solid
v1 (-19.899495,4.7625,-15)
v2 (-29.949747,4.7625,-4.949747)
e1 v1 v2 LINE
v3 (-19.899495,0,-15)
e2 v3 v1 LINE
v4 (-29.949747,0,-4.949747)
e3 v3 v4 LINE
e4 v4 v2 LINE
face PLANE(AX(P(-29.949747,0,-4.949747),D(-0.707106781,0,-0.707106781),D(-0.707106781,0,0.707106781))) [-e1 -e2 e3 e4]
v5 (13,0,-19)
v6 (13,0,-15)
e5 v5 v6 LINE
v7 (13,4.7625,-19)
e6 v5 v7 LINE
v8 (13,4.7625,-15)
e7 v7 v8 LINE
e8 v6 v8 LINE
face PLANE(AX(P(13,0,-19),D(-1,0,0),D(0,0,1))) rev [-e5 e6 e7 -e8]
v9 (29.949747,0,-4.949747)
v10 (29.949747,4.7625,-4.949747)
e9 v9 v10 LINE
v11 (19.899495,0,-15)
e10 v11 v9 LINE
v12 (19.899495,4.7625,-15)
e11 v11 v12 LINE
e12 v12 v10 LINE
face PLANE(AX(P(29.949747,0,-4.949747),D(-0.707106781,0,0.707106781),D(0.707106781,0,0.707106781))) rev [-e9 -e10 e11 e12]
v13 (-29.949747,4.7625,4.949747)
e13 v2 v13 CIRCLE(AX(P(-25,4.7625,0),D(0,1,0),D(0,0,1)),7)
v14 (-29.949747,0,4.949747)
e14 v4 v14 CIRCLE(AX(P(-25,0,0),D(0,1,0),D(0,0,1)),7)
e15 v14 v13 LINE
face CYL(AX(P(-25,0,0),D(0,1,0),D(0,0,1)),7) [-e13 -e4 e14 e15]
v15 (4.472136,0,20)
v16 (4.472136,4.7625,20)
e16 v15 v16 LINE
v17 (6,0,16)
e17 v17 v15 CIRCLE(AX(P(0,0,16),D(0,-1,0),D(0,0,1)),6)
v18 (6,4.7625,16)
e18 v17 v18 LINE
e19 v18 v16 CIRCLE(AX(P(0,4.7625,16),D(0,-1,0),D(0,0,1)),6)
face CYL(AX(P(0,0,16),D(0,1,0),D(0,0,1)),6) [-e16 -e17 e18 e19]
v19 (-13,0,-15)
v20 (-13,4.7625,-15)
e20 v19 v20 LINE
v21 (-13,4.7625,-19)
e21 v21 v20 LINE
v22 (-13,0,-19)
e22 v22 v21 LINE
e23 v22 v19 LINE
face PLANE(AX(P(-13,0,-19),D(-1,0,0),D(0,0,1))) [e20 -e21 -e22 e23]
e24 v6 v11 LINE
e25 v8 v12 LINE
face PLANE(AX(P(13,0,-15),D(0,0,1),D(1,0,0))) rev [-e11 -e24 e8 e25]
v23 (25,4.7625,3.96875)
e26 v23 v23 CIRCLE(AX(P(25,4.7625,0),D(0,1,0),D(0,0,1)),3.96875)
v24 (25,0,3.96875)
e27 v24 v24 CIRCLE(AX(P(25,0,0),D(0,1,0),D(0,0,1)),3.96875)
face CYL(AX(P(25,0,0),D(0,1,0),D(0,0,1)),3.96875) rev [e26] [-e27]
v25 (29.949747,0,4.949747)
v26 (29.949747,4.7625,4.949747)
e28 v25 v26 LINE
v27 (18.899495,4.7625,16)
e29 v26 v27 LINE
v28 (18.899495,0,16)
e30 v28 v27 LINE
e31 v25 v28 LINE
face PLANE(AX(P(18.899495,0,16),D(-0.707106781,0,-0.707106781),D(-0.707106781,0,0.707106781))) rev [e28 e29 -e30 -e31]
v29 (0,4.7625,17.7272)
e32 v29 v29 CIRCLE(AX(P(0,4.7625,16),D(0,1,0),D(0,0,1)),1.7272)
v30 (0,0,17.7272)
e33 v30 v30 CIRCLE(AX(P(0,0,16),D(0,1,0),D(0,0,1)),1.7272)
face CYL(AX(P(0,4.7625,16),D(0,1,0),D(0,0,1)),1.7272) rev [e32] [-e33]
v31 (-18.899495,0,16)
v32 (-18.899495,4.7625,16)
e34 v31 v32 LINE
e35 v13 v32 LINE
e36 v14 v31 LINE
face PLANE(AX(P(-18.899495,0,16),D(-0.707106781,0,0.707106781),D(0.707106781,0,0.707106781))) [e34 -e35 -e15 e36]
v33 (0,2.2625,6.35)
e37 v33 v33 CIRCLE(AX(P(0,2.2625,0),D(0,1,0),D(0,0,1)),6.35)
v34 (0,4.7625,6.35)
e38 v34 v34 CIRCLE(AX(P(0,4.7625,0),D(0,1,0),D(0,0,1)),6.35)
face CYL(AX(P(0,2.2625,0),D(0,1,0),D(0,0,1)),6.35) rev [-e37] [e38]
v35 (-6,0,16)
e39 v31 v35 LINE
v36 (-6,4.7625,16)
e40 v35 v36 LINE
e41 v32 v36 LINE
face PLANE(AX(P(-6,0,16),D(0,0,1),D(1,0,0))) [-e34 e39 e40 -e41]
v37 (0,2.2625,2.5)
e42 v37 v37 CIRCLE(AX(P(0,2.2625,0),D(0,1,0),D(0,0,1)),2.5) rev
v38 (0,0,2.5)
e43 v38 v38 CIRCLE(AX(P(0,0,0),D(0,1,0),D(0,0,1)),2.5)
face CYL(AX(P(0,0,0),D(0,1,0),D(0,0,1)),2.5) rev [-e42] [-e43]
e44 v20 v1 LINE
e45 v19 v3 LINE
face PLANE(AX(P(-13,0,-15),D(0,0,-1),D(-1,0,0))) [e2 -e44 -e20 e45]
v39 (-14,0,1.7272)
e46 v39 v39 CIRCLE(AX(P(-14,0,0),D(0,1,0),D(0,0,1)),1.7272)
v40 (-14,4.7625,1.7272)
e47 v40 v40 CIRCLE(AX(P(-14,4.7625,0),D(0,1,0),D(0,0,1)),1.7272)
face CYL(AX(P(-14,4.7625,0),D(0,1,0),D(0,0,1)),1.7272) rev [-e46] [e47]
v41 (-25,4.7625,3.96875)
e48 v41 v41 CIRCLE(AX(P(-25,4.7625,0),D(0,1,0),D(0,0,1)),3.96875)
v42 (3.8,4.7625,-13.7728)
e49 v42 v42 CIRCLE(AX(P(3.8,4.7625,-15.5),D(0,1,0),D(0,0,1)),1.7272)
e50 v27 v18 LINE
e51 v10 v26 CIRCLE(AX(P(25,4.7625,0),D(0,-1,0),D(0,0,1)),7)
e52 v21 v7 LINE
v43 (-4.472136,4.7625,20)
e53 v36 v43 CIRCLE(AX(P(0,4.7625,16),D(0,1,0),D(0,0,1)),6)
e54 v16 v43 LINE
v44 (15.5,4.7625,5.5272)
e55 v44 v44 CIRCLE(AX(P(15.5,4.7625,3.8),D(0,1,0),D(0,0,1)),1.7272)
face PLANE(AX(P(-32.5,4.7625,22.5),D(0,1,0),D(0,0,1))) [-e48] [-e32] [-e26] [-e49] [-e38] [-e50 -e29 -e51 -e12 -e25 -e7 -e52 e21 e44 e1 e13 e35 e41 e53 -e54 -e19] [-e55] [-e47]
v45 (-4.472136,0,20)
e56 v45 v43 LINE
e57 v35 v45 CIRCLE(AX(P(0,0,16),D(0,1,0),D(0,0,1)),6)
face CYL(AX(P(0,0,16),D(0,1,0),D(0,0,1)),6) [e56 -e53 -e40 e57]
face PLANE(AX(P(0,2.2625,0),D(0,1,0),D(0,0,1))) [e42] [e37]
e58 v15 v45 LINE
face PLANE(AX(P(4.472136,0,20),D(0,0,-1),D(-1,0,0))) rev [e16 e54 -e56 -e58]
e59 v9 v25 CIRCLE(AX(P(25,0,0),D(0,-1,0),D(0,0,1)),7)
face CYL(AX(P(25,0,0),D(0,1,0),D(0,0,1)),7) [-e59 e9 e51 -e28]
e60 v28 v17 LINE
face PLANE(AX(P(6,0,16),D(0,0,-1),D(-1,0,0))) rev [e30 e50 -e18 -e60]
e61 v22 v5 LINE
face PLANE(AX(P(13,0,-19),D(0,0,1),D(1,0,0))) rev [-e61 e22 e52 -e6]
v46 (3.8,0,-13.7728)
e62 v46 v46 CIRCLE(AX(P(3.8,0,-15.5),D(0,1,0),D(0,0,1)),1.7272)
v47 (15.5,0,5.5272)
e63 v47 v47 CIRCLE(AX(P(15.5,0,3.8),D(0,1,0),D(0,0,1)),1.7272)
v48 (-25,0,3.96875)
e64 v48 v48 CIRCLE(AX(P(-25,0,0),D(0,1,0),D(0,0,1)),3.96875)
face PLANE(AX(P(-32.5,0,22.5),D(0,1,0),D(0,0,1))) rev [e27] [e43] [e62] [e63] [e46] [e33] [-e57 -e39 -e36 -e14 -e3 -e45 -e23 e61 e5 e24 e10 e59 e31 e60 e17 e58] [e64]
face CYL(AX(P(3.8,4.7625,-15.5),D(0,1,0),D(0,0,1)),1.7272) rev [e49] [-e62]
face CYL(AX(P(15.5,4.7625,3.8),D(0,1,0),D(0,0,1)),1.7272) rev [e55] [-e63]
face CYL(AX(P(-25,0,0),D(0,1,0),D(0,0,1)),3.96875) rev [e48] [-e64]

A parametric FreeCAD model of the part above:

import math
import FreeCAD as App
import Part
import Sketcher

V = App.Vector
Q = App.Units.Quantity

doc = App.newDocument("Part")
params = doc.addObject("Spreadsheet::Sheet", "Params")
for row, (alias, value) in enumerate([
    ("sketch1_width", "65 mm"),
    ("sketch1_height", "45 mm"),
    ("pad1_length", "4.7625 mm"),
    ("sketch2_diameter", "5 mm"),
    ("hole_diameter", "3.4544 mm"),
    ("sketch5_radius", "6 mm"),
    ("sketch5_radius2", "7 mm"),
    ("sketch5_width", "13 mm"),
    ("sketch5_height", "45 mm"),
    ("sketch5_height2", "4 mm"),
    ("sketch6_diameter", "12.7 mm"),
    ("pocket4_length", "2.5 mm"),
], start=1):
    params.set(f"A{row}", alias)
    params.set(f"B{row}", "=" + value)
    params.setAlias(f"B{row}", alias)

body = doc.addObject("PartDesign::Body", "Body")

sketch1 = body.newObject("Sketcher::SketchObject", "Sketch")
sketch1.AttachmentSupport = (doc.getObject("XZ_Plane"), [""])
sketch1.MapMode = "FlatFace"
sketch1.addGeometry([
    Part.LineSegment(V(-32.5, -22.5, 0), V(-32.5, 22.5, 0)),
    Part.LineSegment(V(-32.5, 22.5, 0), V(32.5, 22.5, 0)),
    Part.LineSegment(V(32.5, 22.5, 0), V(32.5, -22.5, 0)),
    Part.LineSegment(V(32.5, -22.5, 0), V(-32.5, -22.5, 0)),
], False)
sketch1.addConstraint([
    Sketcher.Constraint("Coincident", 0, 2, 1, 1),
    Sketcher.Constraint("Coincident", 1, 2, 2, 1),
    Sketcher.Constraint("Coincident", 2, 2, 3, 1),
    Sketcher.Constraint("Coincident", 3, 2, 0, 1),
    Sketcher.Constraint("Vertical", 0),
    Sketcher.Constraint("Horizontal", 1),
    Sketcher.Constraint("Vertical", 2),
    Sketcher.Constraint("Horizontal", 3),
    Sketcher.Constraint("Symmetric", 0, 2, 2, 2, -1, 1),
    Sketcher.Constraint("DistanceX", 1, 1, 1, 2, Q("65 mm")),
    Sketcher.Constraint("DistanceY", 0, 1, 0, 2, Q("45 mm")),
])
sketch1.setExpression("Constraints[9]", "Params.sketch1_width")
sketch1.setExpression("Constraints[10]", "Params.sketch1_height")
pad1 = body.newObject("PartDesign::Pad", "Pad")
pad1.Profile = sketch1
pad1.setExpression("Length", "Params.pad1_length")
pad1.Reversed = True

sketch2 = body.newObject("Sketcher::SketchObject", "Sketch001")
sketch2.AttachmentSupport = (doc.getObject("XZ_Plane"), [""])
sketch2.MapMode = "FlatFace"
sketch2.AttachmentOffset = App.Placement(V(0, 0, -4.7625), App.Rotation())
sketch2.addGeometry(Part.Circle(V(0, 0, 0), V(0, 0, 1), 2.5), False)
sketch2.addConstraint([
    Sketcher.Constraint("Coincident", 0, 3, -1, 1),
    Sketcher.Constraint("Diameter", 0, Q("5 mm")),
])
sketch2.setExpression("Constraints[1]", "Params.sketch2_diameter")
pocket1 = body.newObject("PartDesign::Pocket", "Pocket")
pocket1.Profile = sketch2
pocket1.Type = "ThroughAll"
pocket1.Reversed = True

sketch3 = body.newObject("Sketcher::SketchObject", "Sketch002")
sketch3.AttachmentSupport = (doc.getObject("XZ_Plane"), [""])
sketch3.MapMode = "FlatFace"
sketch3.AttachmentOffset = App.Placement(V(0, 0, -4.7625), App.Rotation())
sketch3.addGeometry([
    Part.Circle(V(15.5, 3.8, 0), V(0, 0, 1), 1.7272),
    Part.Circle(V(-14, 0, 0), V(0, 0, 1), 1.7272),
    Part.Circle(V(3.8, -15.5, 0), V(0, 0, 1), 1.7272),
    Part.Circle(V(0, 16, 0), V(0, 0, 1), 1.7272),
], False)
sketch3.addConstraint([
    Sketcher.Constraint("Equal", 0, 1),
    Sketcher.Constraint("Equal", 1, 2),
    Sketcher.Constraint("Equal", 2, 3),
    Sketcher.Constraint("PointOnObject", 1, 3, -1),
    Sketcher.Constraint("PointOnObject", 3, 3, -2),
    Sketcher.Constraint("DistanceX", 1, 3, -1, 1, Q("14 mm")),
    Sketcher.Constraint("DistanceY", -1, 1, 3, 3, Q("16 mm")),
    Sketcher.Constraint("Diameter", 0, Q("3.4544 mm")),
    Sketcher.Constraint("DistanceX", -1, 1, 0, 3, Q("15.5 mm")),
    Sketcher.Constraint("DistanceY", -1, 1, 0, 3, Q("3.8 mm")),
    Sketcher.Constraint("DistanceX", -1, 1, 2, 3, Q("3.8 mm")),
    Sketcher.Constraint("DistanceY", 2, 3, -1, 1, Q("15.5 mm")),
])
doc.recompute()
hole = body.newObject("PartDesign::Hole", "Hole")
hole.Profile = sketch3
hole.ThreadType = "None"
hole.setExpression("Diameter", "Params.hole_diameter")
hole.DepthType = "ThroughAll"
hole.Reversed = True

sketch4 = body.newObject("Sketcher::SketchObject", "Sketch003")
sketch4.AttachmentSupport = (doc.getObject("XZ_Plane"), [""])
sketch4.MapMode = "FlatFace"
sketch4.AttachmentOffset = App.Placement(V(0, 0, -4.7625), App.Rotation())
sketch4.addGeometry([
    Part.Circle(V(-25, 0, 0), V(0, 0, 1), 3.96875),
    Part.Circle(V(25, 0, 0), V(0, 0, 1), 3.96875),
], False)
sketch4.addConstraint([
    Sketcher.Constraint("Equal", 0, 1),
    Sketcher.Constraint("Symmetric", 0, 3, 1, 3, -1, 1),
    Sketcher.Constraint("PointOnObject", 0, 3, -1),
    Sketcher.Constraint("DistanceX", 0, 3, -1, 1, Q("25 mm")),
    Sketcher.Constraint("Diameter", 0, Q("7.9375 mm")),
])
pocket2 = body.newObject("PartDesign::Pocket", "Pocket001")
pocket2.Profile = sketch4
pocket2.Type = "ThroughAll"
pocket2.Reversed = True

sketch5 = body.newObject("Sketcher::SketchObject", "Sketch004")
sketch5.AttachmentSupport = (doc.getObject("XZ_Plane"), [""])
sketch5.MapMode = "FlatFace"
sketch5.AttachmentOffset = App.Placement(V(0, 0, -4.7625), App.Rotation())
sketch5.addGeometry([
    Part.LineSegment(V(18.899495, 16, 0), V(6, 16, 0)),
    Part.ArcOfCircle(Part.Circle(V(0, 16, 0), V(0, 0, 1), 6), math.radians(0), math.radians(41.810315)),
    Part.LineSegment(V(4.472136, 20, 0), V(0, 20, 0)),
    Part.LineSegment(V(0, 20, 0), V(0, 22.5, 0)),
    Part.LineSegment(V(0, 22.5, 0), V(32.5, 22.5, 0)),
    Part.LineSegment(V(32.5, 22.5, 0), V(32.5, -22.5, 0)),
    Part.LineSegment(V(32.5, -22.5, 0), V(0, -22.5, 0)),
    Part.LineSegment(V(0, -22.5, 0), V(0, -19, 0)),
    Part.LineSegment(V(0, -19, 0), V(13, -19, 0)),
    Part.LineSegment(V(13, -19, 0), V(13, -15, 0)),
    Part.LineSegment(V(13, -15, 0), V(19.899495, -15, 0)),
    Part.LineSegment(V(19.899495, -15, 0), V(29.949747, -4.949747, 0)),
    Part.ArcOfCircle(Part.Circle(V(25, 0, 0), V(0, 0, 1), 7), math.radians(-45), math.radians(45)),
    Part.LineSegment(V(29.949747, 4.949747, 0), V(18.899495, 16, 0)),
], False)
sketch5.addConstraint([
    Sketcher.Constraint("Coincident", 0, 2, 1, 1),
    Sketcher.Constraint("Coincident", 1, 2, 2, 1),
    Sketcher.Constraint("Coincident", 2, 2, 3, 1),
    Sketcher.Constraint("Coincident", 3, 2, 4, 1),
    Sketcher.Constraint("Coincident", 4, 2, 5, 1),
    Sketcher.Constraint("Coincident", 5, 2, 6, 1),
    Sketcher.Constraint("Coincident", 6, 2, 7, 1),
    Sketcher.Constraint("Coincident", 7, 2, 8, 1),
    Sketcher.Constraint("Coincident", 8, 2, 9, 1),
    Sketcher.Constraint("Coincident", 9, 2, 10, 1),
    Sketcher.Constraint("Coincident", 10, 2, 11, 1),
    Sketcher.Constraint("Tangent", 11, 2, 12, 1),
    Sketcher.Constraint("Tangent", 12, 2, 13, 1),
    Sketcher.Constraint("Coincident", 13, 2, 0, 1),
    Sketcher.Constraint("Horizontal", 0),
    Sketcher.Constraint("Horizontal", 2),
    Sketcher.Constraint("Vertical", 3),
    Sketcher.Constraint("Horizontal", 4),
    Sketcher.Constraint("Vertical", 5),
    Sketcher.Constraint("Horizontal", 6),
    Sketcher.Constraint("Vertical", 7),
    Sketcher.Constraint("Horizontal", 8),
    Sketcher.Constraint("Vertical", 9),
    Sketcher.Constraint("Horizontal", 10),
    Sketcher.Constraint("Symmetric", 3, 2, 6, 2, -1, 1),
    Sketcher.Constraint("Symmetric", 11, 2, 12, 2, -1),
    Sketcher.Constraint("PointOnObject", 1, 3, -2),
    Sketcher.Constraint("PointOnObject", 2, 2, -2),
    Sketcher.Constraint("Perpendicular", 11, 13),
    Sketcher.Constraint("Horizontal", 1, 3, 0, 2),
    Sketcher.Constraint("Radius", 1, Q("6 mm")),
    Sketcher.Constraint("Radius", 12, Q("7 mm")),
    Sketcher.Constraint("DistanceX", 8, 1, 8, 2, Q("13 mm")),
    Sketcher.Constraint("DistanceY", 5, 2, 5, 1, Q("45 mm")),
    Sketcher.Constraint("DistanceY", 9, 1, 9, 2, Q("4 mm")),
    Sketcher.Constraint("DistanceX", 4, 1, 4, 2, Q("32.5 mm")),
    Sketcher.Constraint("DistanceY", 3, 1, 3, 2, Q("2.5 mm")),
    Sketcher.Constraint("DistanceY", 7, 1, 7, 2, Q("3.5 mm")),
    Sketcher.Constraint("DistanceY", -1, 1, 1, 3, Q("16 mm")),
    Sketcher.Constraint("DistanceX", -1, 1, 12, 3, Q("25 mm")),
])
sketch5.setExpression("Constraints[30]", "Params.sketch5_radius")
sketch5.setExpression("Constraints[31]", "Params.sketch5_radius2")
sketch5.setExpression("Constraints[32]", "Params.sketch5_width")
sketch5.setExpression("Constraints[33]", "Params.sketch5_height")
sketch5.setExpression("Constraints[34]", "Params.sketch5_height2")
pocket3 = body.newObject("PartDesign::Pocket", "Pocket002")
pocket3.Profile = sketch5
pocket3.Type = "ThroughAll"
pocket3.Reversed = True
doc.recompute()

mirrored = body.newObject("PartDesign::Mirrored", "Mirrored")
mirrored.Originals = [pocket3]
mirrored.MirrorPlane = (doc.getObject("YZ_Plane"), [""])
body.Tip = mirrored

sketch6 = body.newObject("Sketcher::SketchObject", "Sketch005")
sketch6.AttachmentSupport = (doc.getObject("XZ_Plane"), [""])
sketch6.MapMode = "FlatFace"
sketch6.AttachmentOffset = App.Placement(V(0, 0, -4.7625), App.Rotation())
sketch6.addGeometry(Part.Circle(V(0, 0, 0), V(0, 0, 1), 6.35), False)
sketch6.addConstraint([
    Sketcher.Constraint("Coincident", 0, 3, -1, 1),
    Sketcher.Constraint("Diameter", 0, Q("12.7 mm")),
])
sketch6.setExpression("Constraints[1]", "Params.sketch6_diameter")
pocket4 = body.newObject("PartDesign::Pocket", "Pocket003")
pocket4.Profile = sketch6
pocket4.setExpression("Length", "Params.pocket4_length")
pocket4.Reversed = True

doc.recompute()
